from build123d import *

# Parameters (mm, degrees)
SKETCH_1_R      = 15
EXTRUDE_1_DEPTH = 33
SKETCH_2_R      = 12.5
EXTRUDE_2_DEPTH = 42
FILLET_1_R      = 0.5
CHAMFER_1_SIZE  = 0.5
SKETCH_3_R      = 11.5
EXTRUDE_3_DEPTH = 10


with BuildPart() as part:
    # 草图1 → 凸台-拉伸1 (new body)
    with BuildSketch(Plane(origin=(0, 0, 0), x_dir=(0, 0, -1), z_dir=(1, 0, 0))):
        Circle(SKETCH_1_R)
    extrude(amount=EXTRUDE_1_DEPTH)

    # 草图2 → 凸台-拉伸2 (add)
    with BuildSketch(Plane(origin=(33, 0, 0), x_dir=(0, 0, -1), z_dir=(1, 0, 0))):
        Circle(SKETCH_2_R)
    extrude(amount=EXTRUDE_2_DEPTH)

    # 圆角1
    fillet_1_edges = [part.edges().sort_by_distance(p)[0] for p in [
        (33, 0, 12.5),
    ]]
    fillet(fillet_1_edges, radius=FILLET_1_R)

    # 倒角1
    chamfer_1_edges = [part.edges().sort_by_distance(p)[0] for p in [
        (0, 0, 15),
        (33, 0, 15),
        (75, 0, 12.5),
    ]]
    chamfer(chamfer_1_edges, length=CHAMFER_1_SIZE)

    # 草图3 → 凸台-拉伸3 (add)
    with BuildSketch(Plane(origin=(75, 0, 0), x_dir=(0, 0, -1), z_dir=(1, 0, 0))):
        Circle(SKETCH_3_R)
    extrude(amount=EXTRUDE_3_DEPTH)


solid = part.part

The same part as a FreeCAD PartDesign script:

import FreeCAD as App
import Part
import Sketcher

V = App.Vector
Q = App.Units.Quantity


def edges_at(feature, points):
    """Names of the edges that pass closest to the given points."""
    edges = feature.Shape.Edges
    near = lambda p: min(range(len(edges)), key=lambda i: edges[i].distToShape(Part.Vertex(*p))[0])
    return sorted({f"Edge{near(p) + 1}" for p in points})

doc = App.newDocument("Part")
body = doc.addObject("PartDesign::Body", "Body")

sketch1 = body.newObject("Sketcher::SketchObject", "Sketch")
sketch1.AttachmentSupport = (doc.getObject("YZ_Plane"), [""])
sketch1.MapMode = "FlatFace"
sketch1.addGeometry(Part.Circle(V(0, 0, 0), V(0, 0, 1), 15), False)
sketch1.addConstraint(Sketcher.Constraint("Coincident", 0, 3, -1, 1))
sketch1.addConstraint(Sketcher.Constraint("Diameter", 0, Q("30 mm")))
pad1 = body.newObject("PartDesign::Pad", "Pad")
pad1.Profile = sketch1
pad1.Length = 33

sketch2 = body.newObject("Sketcher::SketchObject", "Sketch001")
sketch2.AttachmentSupport = (doc.getObject("YZ_Plane"), [""])
sketch2.MapMode = "FlatFace"
sketch2.AttachmentOffset = App.Placement(V(0, 0, 33), App.Rotation())
sketch2.addGeometry(Part.Circle(V(0, 0, 0), V(0, 0, 1), 12), False)
sketch2.addConstraint(Sketcher.Constraint("Coincident", 0, 3, -1, 1))
sketch2.addConstraint(Sketcher.Constraint("Diameter", 0, Q("25 mm")))
pad2 = body.newObject("PartDesign::Pad", "Pad001")
pad2.Profile = sketch2
pad2.Length = 42
doc.recompute()

fillet = body.newObject("PartDesign::Fillet", "Fillet")
fillet.Base = (pad2, edges_at(pad2, [(33, 0, 12.5)]))
fillet.Radius = 0.5
doc.recompute()

chamfer = body.newObject("PartDesign::Chamfer", "Chamfer")
chamfer.Base = (fillet, edges_at(fillet, [(0, 0, 15), (33, 0, 15), (75, 0, 12.5)]))
chamfer.Size = 0.5

sketch3 = body.newObject("Sketcher::SketchObject", "Sketch002")
sketch3.AttachmentSupport = (doc.getObject("YZ_Plane"), [""])
sketch3.MapMode = "FlatFace"
sketch3.AttachmentOffset = App.Placement(V(0, 0, 75), App.Rotation())
sketch3.addGeometry(Part.Circle(V(0, 0, 0), V(0, 0, 1), 12), False)
sketch3.addConstraint(Sketcher.Constraint("Coincident", 0, 3, -1, 1))
sketch3.addConstraint(Sketcher.Constraint("Diameter", 0, Q("23 mm")))
pad3 = body.newObject("PartDesign::Pad", "Pad002")
pad3.Profile = sketch3
pad3.Length = 10

doc.recompute()
